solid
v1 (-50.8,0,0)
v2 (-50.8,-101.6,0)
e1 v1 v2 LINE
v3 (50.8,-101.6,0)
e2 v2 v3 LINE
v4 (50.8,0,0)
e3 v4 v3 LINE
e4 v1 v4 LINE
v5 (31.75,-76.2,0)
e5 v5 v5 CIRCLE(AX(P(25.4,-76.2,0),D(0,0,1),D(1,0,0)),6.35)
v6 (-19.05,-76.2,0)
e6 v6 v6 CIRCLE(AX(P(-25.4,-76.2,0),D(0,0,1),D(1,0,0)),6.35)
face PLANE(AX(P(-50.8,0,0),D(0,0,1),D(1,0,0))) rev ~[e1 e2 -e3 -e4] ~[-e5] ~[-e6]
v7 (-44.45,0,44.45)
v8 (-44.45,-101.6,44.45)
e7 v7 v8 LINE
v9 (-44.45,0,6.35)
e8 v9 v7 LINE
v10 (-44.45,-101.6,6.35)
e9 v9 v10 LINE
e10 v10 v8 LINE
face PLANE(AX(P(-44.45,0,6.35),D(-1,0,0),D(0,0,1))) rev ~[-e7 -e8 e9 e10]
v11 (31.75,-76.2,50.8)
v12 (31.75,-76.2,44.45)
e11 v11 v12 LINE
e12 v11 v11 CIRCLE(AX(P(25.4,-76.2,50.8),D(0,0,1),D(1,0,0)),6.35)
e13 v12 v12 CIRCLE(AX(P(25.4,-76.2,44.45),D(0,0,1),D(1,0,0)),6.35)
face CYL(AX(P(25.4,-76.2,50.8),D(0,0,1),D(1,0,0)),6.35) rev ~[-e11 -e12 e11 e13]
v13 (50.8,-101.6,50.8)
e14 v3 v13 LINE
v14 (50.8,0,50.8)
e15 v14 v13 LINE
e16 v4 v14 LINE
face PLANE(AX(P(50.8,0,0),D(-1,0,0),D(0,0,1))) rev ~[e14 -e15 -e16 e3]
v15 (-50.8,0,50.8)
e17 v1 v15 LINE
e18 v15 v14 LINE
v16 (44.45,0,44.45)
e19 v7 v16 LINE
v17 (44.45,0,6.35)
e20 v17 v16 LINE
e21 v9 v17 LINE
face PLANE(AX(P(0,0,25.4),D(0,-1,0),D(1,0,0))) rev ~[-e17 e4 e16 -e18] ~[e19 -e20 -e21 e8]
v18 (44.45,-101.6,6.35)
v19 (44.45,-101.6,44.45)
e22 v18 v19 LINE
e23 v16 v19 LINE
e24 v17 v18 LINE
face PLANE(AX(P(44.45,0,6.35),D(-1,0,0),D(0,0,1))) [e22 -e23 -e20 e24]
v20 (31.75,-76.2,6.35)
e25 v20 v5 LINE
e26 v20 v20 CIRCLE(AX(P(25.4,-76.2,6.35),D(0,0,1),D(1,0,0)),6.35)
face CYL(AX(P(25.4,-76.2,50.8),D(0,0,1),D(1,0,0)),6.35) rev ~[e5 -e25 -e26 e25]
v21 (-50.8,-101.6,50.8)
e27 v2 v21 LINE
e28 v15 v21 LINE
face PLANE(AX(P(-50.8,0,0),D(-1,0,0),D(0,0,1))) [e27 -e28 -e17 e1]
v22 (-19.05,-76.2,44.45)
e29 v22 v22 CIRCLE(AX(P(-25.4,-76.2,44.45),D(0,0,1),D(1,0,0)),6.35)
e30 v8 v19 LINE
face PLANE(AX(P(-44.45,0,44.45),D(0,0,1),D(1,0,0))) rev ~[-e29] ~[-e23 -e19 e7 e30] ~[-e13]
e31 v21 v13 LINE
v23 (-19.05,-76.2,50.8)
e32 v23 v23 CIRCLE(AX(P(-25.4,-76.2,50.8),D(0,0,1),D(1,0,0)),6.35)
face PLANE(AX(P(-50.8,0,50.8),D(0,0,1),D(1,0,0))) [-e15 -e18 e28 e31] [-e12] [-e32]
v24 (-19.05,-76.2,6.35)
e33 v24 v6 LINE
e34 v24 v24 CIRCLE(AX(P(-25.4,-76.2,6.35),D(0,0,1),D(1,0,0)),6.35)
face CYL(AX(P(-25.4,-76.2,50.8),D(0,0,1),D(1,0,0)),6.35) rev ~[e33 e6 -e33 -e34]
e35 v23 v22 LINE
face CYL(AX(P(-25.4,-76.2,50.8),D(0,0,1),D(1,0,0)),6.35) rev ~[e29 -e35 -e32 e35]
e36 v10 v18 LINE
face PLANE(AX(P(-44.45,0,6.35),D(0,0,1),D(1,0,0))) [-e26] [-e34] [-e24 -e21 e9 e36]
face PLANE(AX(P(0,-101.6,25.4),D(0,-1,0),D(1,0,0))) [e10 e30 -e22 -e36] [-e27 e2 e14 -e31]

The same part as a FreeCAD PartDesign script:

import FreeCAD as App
import Part
import Sketcher

V = App.Vector
Q = App.Units.Quantity


def add_polygon(sketch, points):
    """Adds a closed chain of lines whose ends are joined by coincident constraints."""
    first, n = sketch.GeometryCount, len(points)
    for a, b in zip(points, points[1:] + points[:1]):
        sketch.addGeometry(Part.LineSegment(App.Vector(*a, 0), App.Vector(*b, 0)), False)
    for i in range(n):
        sketch.addConstraint(Sketcher.Constraint("Coincident", first + i, 2, first + (i + 1) % n, 1))

doc = App.newDocument("Part")
params = doc.addObject("Spreadsheet::Sheet", "Params")
for row, (alias, value) in enumerate([
    ("sketch1_width", "4 in"),
    ("sketch1_height", "2 in"),
    ("sketch1_width2", "3.5 in"),
    ("sketch1_height2", "1.5 in"),
    ("pad1_length", "4 in"),
    ("sketch2_diameter", "0.5 in"),
], start=1):
    params.set(f"A{row}", alias)
    params.set(f"B{row}", "=" + value)
    params.setAlias(f"B{row}", alias)

body = doc.addObject("PartDesign::Body", "Body")

# Sketch on XZ plane
sketch1 = doc.addObject("Sketcher::SketchObject", "Sketch")
body.addObject(sketch1)
sketch1.AttachmentSupport = (doc.XZ_Plane, [""])
sketch1.MapMode = "FlatFace"
add_polygon(sketch1, [(-51, 51), (-51, 0), (51, 0), (51, 51)])  # lines 0-3
add_polygon(sketch1, [(44, 6), (-44, 6), (-44, 44), (44, 44)])  # lines 4-7
sketch1.addConstraint(Sketcher.Constraint("Vertical", 0))
sketch1.addConstraint(Sketcher.Constraint("Horizontal", 1))
sketch1.addConstraint(Sketcher.Constraint("Vertical", 2))
sketch1.addConstraint(Sketcher.Constraint("Horizontal", 3))
sketch1.addConstraint(Sketcher.Constraint("Horizontal", 4))
sketch1.addConstraint(Sketcher.Constraint("Vertical", 5))
sketch1.addConstraint(Sketcher.Constraint("Horizontal", 6))
sketch1.addConstraint(Sketcher.Constraint("Vertical", 7))
sketch1.addConstraint(Sketcher.Constraint("Symmetric", 0, 2, 1, 2, -1, 1))
sketch1.addConstraint(Sketcher.Constraint("DistanceX", 1, 1, 1, 2, Q("4 in")))
sketch1.addConstraint(Sketcher.Constraint("DistanceY", 0, 2, 0, 1, Q("2 in")))
sketch1.addConstraint(Sketcher.Constraint("DistanceX", 4, 2, 4, 1, Q("3.5 in")))
sketch1.addConstraint(Sketcher.Constraint("DistanceY", 5, 1, 5, 2, Q("1.5 in")))
sketch1.addConstraint(Sketcher.Constraint("DistanceX", 4, 2, -1, 1, Q("1.75 in")))
sketch1.addConstraint(Sketcher.Constraint("DistanceY", -1, 1, 4, 2, Q("0.25 in")))
sketch1.setExpression("Constraints[17]", "Params.sketch1_width")
sketch1.setExpression("Constraints[18]", "Params.sketch1_height")
sketch1.setExpression("Constraints[19]", "Params.sketch1_width2")
sketch1.setExpression("Constraints[20]", "Params.sketch1_height2")
pad1 = doc.addObject("PartDesign::Pad", "Pad")
body.addObject(pad1)
pad1.Profile = sketch1
pad1.setExpression("Length", "Params.pad1_length")

# Sketch on XY plane
sketch2 = doc.addObject("Sketcher::SketchObject", "Sketch001")
body.addObject(sketch2)
sketch2.AttachmentSupport = (doc.XY_Plane, [""])
sketch2.MapMode = "FlatFace"
sketch2.AttachmentOffset = App.Placement(V(0, 0, 2 * 25.4), App.Rotation())
sketch2.addGeometry(Part.Circle(V(25, -76, 0), V(0, 0, 1), 6), False)
sketch2.addGeometry(Part.Circle(V(-25, -76, 0), V(0, 0, 1), 6), False)
sketch2.addConstraint(Sketcher.Constraint("Equal", 0, 1))
sketch2.addConstraint(Sketcher.Constraint("Symmetric", 0, 3, 1, 3, -2))
sketch2.addConstraint(Sketcher.Constraint("Diameter", 0, Q("0.5 in")))
sketch2.addConstraint(Sketcher.Constraint("DistanceX", -1, 1, 0, 3, Q("1 in")))
sketch2.addConstraint(Sketcher.Constraint("DistanceY", 0, 3, -1, 1, Q("3 in")))
sketch2.setExpression("Constraints[2]", "Params.sketch2_diameter")
pocket1 = doc.addObject("PartDesign::Pocket", "Pocket")
body.addObject(pocket1)
pocket1.Profile = sketch2
pocket1.Type = "ThroughAll"

doc.recompute()
